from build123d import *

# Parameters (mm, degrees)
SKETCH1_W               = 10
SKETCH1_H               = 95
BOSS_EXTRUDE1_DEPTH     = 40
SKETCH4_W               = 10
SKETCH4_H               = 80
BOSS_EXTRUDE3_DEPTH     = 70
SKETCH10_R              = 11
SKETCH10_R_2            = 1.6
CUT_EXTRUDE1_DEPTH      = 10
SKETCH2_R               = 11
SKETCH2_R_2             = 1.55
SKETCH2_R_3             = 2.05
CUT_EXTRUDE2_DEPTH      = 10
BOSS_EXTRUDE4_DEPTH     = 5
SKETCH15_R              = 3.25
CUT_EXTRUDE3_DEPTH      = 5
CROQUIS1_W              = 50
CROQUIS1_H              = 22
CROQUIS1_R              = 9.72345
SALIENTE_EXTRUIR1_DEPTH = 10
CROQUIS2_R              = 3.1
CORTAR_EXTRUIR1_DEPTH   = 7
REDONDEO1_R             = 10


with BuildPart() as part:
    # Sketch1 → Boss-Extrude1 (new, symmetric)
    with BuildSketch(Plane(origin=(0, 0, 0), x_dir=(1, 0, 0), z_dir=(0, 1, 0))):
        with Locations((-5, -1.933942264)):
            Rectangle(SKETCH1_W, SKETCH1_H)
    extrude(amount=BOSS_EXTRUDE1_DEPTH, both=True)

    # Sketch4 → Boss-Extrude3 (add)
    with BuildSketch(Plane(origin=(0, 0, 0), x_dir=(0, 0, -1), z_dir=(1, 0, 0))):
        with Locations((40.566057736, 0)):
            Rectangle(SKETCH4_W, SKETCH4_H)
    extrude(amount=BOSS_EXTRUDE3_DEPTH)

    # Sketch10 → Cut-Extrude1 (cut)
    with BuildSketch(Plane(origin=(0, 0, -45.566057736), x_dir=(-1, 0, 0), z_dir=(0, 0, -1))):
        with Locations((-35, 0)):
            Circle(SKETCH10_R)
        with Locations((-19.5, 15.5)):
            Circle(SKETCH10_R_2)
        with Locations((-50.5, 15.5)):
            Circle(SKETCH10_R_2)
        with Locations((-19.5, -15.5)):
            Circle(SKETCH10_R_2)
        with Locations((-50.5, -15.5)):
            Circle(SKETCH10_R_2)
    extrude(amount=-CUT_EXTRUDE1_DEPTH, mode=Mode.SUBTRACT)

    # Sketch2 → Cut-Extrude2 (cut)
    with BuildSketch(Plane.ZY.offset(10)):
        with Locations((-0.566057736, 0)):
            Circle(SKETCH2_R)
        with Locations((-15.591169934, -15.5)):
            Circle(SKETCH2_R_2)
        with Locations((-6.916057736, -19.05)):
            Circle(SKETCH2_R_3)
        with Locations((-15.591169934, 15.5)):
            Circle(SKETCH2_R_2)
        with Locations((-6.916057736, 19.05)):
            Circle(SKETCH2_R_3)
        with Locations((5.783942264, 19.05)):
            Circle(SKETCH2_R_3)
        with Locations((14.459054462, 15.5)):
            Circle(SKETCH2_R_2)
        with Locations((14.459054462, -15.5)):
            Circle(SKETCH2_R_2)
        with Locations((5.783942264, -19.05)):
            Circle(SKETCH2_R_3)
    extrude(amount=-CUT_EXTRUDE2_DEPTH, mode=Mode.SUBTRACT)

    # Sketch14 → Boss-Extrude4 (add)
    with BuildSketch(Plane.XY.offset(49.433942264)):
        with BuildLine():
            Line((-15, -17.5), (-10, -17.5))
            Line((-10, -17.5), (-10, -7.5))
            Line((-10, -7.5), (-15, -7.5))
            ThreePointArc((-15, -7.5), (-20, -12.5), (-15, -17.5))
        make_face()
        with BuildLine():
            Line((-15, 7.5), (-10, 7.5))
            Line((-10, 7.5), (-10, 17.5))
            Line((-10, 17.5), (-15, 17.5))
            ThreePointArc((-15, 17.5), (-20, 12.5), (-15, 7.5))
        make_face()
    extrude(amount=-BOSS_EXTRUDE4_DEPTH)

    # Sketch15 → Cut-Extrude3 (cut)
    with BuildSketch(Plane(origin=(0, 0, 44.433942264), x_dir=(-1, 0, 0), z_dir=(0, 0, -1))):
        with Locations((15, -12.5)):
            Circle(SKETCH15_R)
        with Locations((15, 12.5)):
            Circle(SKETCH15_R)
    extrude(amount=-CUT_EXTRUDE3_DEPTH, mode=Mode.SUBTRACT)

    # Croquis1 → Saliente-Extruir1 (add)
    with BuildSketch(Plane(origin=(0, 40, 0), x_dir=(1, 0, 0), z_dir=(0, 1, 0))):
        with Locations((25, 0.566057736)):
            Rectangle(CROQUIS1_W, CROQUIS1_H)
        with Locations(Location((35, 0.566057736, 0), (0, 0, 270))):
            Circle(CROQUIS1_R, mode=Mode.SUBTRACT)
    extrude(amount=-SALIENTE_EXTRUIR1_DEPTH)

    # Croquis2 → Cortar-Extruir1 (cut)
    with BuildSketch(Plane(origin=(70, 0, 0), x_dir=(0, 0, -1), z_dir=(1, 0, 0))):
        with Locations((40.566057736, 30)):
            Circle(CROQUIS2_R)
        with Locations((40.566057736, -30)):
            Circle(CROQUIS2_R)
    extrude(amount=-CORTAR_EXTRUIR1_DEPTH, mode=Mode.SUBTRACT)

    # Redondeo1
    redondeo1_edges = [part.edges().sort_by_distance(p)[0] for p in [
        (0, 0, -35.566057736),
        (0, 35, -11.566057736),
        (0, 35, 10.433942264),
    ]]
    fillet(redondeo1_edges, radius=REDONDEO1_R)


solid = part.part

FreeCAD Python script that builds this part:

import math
import FreeCAD as App
import Part
import Sketcher
from FreeCAD import Vector
Q = App.Units.Quantity


def edges_at(feature, points):
    """Names of the edges that pass closest to the given points."""
    edges = feature.Shape.Edges
    near = lambda p: min(range(len(edges)), key=lambda i: edges[i].distToShape(Part.Vertex(*p))[0])
    return sorted({f"Edge{near(p) + 1}" for p in points})


def add_polygon(sketch, points):
    """Adds a closed chain of lines whose ends are joined by coincident constraints."""
    first, n = sketch.GeometryCount, len(points)
    for a, b in zip(points, points[1:] + points[:1]):
        sketch.addGeometry(Part.LineSegment(App.Vector(*a, 0), App.Vector(*b, 0)), False)
    for i in range(n):
        sketch.addConstraint(Sketcher.Constraint("Coincident", first + i, 2, first + (i + 1) % n, 1))

doc = App.newDocument("Part")
params = doc.addObject("Spreadsheet::Sheet", "Params")
for row, (alias, value) in enumerate([
    ("sketch1_width", "10 mm"),
    ("sketch1_height", "95 mm"),
    ("pad1_length", "80 mm"),
    ("sketch2_width", "80 mm"),
    ("sketch2_height", "10 mm"),
    ("pad2_length", "70 mm"),
    ("sketch3_diameter", "22 mm"),
    ("sketch3_diameter2", "3.2 mm"),
    ("pocket1_length", "10 mm"),
    ("sketch4_diameter", "22 mm"),
    ("sketch4_diameter2", "3.1 mm"),
    ("sketch4_diameter3", "4.1 mm"),
    ("pocket2_length", "10 mm"),
    ("sketch5_radius", "5 mm"),
    ("sketch5_width", "5 mm"),
    ("pad3_length", "5 mm"),
    ("sketch6_diameter", "6.5 mm"),
    ("pocket3_length", "5 mm"),
    ("sketch7_width", "50 mm"),
    ("sketch7_height", "22 mm"),
    ("pad4_length", "10 mm"),
    ("sketch8_diameter", "6.2 mm"),
    ("pocket4_length", "7 mm"),
    ("fillet_radius", "10 mm"),
], start=1):
    params.set(f"A{row}", alias)
    params.set(f"B{row}", "=" + value)
    params.setAlias(f"B{row}", alias)

body = doc.addObject("PartDesign::Body", "Body")

# Sketch on XZ plane
sketch1 = body.newObject("Sketcher::SketchObject", "Sketch")
sketch1.AttachmentSupport = (doc.getObject("XZ_Plane"), [""])
sketch1.MapMode = "FlatFace"
add_polygon(sketch1, [(-10, -45.566058), (-10, 49.433942), (0, 49.433942), (0, -45.566058)])  # lines 0-3
sketch1.addConstraint(Sketcher.Constraint("Vertical", 0))
sketch1.addConstraint(Sketcher.Constraint("Horizontal", 1))
sketch1.addConstraint(Sketcher.Constraint("Vertical", 2))
sketch1.addConstraint(Sketcher.Constraint("Horizontal", 3))
sketch1.addConstraint(Sketcher.Constraint("PointOnObject", 1, 2, -2))
sketch1.addConstraint(Sketcher.Constraint("DistanceX", 1, 1, 1, 2, Q("10 mm")))
sketch1.addConstraint(Sketcher.Constraint("DistanceY", 0, 1, 0, 2, Q("95 mm")))
sketch1.addConstraint(Sketcher.Constraint("DistanceY", -1, 1, 0, 2, Q("49.433942 mm")))
sketch1.setExpression("Constraints[9]", "Params.sketch1_width")
sketch1.setExpression("Constraints[10]", "Params.sketch1_height")
pad1 = body.newObject("PartDesign::Pad", "Pad")
pad1.Profile = sketch1
pad1.setExpression("Length", "Params.pad1_length")
pad1.Midplane = True

# Sketch on YZ plane
sketch2 = body.newObject("Sketcher::SketchObject", "Sketch001")
sketch2.AttachmentSupport = (doc.getObject("YZ_Plane"), [""])
sketch2.MapMode = "FlatFace"
add_polygon(sketch2, [(40, -35.566058), (-40, -35.566058), (-40, -45.566058), (40, -45.566058)])  # lines 0-3
sketch2.addConstraint(Sketcher.Constraint("Horizontal", 0))
sketch2.addConstraint(Sketcher.Constraint("Vertical", 1))
sketch2.addConstraint(Sketcher.Constraint("Horizontal", 2))
sketch2.addConstraint(Sketcher.Constraint("Vertical", 3))
sketch2.addConstraint(Sketcher.Constraint("DistanceX", 0, 2, 0, 1, Q("80 mm")))
sketch2.addConstraint(Sketcher.Constraint("DistanceY", 1, 2, 1, 1, Q("10 mm")))
sketch2.addConstraint(Sketcher.Constraint("DistanceX", 0, 2, -1, 1, Q("40 mm")))
sketch2.addConstraint(Sketcher.Constraint("DistanceY", 0, 2, -1, 1, Q("35.566058 mm")))
sketch2.setExpression("Constraints[8]", "Params.sketch2_width")
sketch2.setExpression("Constraints[9]", "Params.sketch2_height")
pad2 = body.newObject("PartDesign::Pad", "Pad001")
pad2.Profile = sketch2
pad2.setExpression("Length", "Params.pad2_length")

# Sketch on XY plane
sketch3 = body.newObject("Sketcher::SketchObject", "Sketch002")
sketch3.AttachmentSupport = (doc.getObject("XY_Plane"), [""])
sketch3.MapMode = "FlatFace"
sketch3.AttachmentOffset = App.Placement(Vector(0, 0, -45.566058), App.Rotation())
sketch3.addGeometry(Part.Circle(Vector(35, 0, 0), Vector(0, 0, 1), 11), False)
sketch3.addGeometry(Part.Circle(Vector(19.5, 15.5, 0), Vector(0, 0, 1), 1.6), False)
sketch3.addGeometry(Part.Circle(Vector(50.5, 15.5, 0), Vector(0, 0, 1), 1.6), False)
sketch3.addGeometry(Part.Circle(Vector(19.5, -15.5, 0), Vector(0, 0, 1), 1.6), False)
sketch3.addGeometry(Part.Circle(Vector(50.5, -15.5, 0), Vector(0, 0, 1), 1.6), False)
sketch3.addConstraint(Sketcher.Constraint("Equal", 1, 2))
sketch3.addConstraint(Sketcher.Constraint("Equal", 2, 3))
sketch3.addConstraint(Sketcher.Constraint("Equal", 3, 4))
sketch3.addConstraint(Sketcher.Constraint("Symmetric", 1, 3, 3, 3, -1))
sketch3.addConstraint(Sketcher.Constraint("Symmetric", 2, 3, 4, 3, -1))
sketch3.addConstraint(Sketcher.Constraint("PointOnObject", 0, 3, -1))
sketch3.addConstraint(Sketcher.Constraint("Horizontal", 1, 3, 2, 3))
sketch3.addConstraint(Sketcher.Constraint("Diameter", 0, Q("22 mm")))
sketch3.addConstraint(Sketcher.Constraint("Diameter", 1, Q("3.2 mm")))
sketch3.addConstraint(Sketcher.Constraint("DistanceX", -1, 1, 0, 3, Q("35 mm")))
sketch3.addConstraint(Sketcher.Constraint("DistanceX", 1, 3, 2, 3, Q("31 mm")))
sketch3.addConstraint(Sketcher.Constraint("DistanceY", 3, 3, 1, 3, Q("31 mm")))
sketch3.addConstraint(Sketcher.Constraint("DistanceX", -1, 1, 1, 3, Q("19.5 mm")))
sketch3.setExpression("Constraints[7]", "Params.sketch3_diameter")
sketch3.setExpression("Constraints[8]", "Params.sketch3_diameter2")
pocket1 = body.newObject("PartDesign::Pocket", "Pocket")
pocket1.Profile = sketch3
pocket1.setExpression("Length", "Params.pocket1_length")
pocket1.Reversed = True

# Sketch on YZ plane
sketch4 = body.newObject("Sketcher::SketchObject", "Sketch003")
sketch4.AttachmentSupport = (doc.getObject("YZ_Plane"), [""])
sketch4.MapMode = "FlatFace"
sketch4.AttachmentOffset = App.Placement(Vector(0, 0, -10), App.Rotation())
sketch4.addGeometry(Part.Circle(Vector(0, -0.566058, 0), Vector(0, 0, 1), 11), False)
sketch4.addGeometry(Part.Circle(Vector(-15.5, -15.59117, 0), Vector(0, 0, 1), 1.55), False)
sketch4.addGeometry(Part.Circle(Vector(-19.05, -6.916058, 0), Vector(0, 0, 1), 2.05), False)
sketch4.addGeometry(Part.Circle(Vector(15.5, -15.59117, 0), Vector(0, 0, 1), 1.55), False)
sketch4.addGeometry(Part.Circle(Vector(19.05, -6.916058, 0), Vector(0, 0, 1), 2.05), False)
sketch4.addGeometry(Part.Circle(Vector(19.05, 5.783942, 0), Vector(0, 0, 1), 2.05), False)
sketch4.addGeometry(Part.Circle(Vector(15.5, 14.459054, 0), Vector(0, 0, 1), 1.55), False)
sketch4.addGeometry(Part.Circle(Vector(-15.5, 14.459054, 0), Vector(0, 0, 1), 1.55), False)
sketch4.addGeometry(Part.Circle(Vector(-19.05, 5.783942, 0), Vector(0, 0, 1), 2.05), False)
sketch4.addConstraint(Sketcher.Constraint("Equal", 1, 3))
sketch4.addConstraint(Sketcher.Constraint("Equal", 2, 4))
sketch4.addConstraint(Sketcher.Constraint("Equal", 4, 5))
sketch4.addConstraint(Sketcher.Constraint("Equal", 3, 6))
sketch4.addConstraint(Sketcher.Constraint("Equal", 6, 7))
sketch4.addConstraint(Sketcher.Constraint("Equal", 5, 8))
sketch4.addConstraint(Sketcher.Constraint("Symmetric", 1, 3, 3, 3, -2))
sketch4.addConstraint(Sketcher.Constraint("Symmetric", 2, 3, 4, 3, -2))
sketch4.addConstraint(Sketcher.Constraint("Symmetric", 6, 3, 7, 3, -2))
sketch4.addConstraint(Sketcher.Constraint("Symmetric", 5, 3, 8, 3, -2))
sketch4.addConstraint(Sketcher.Constraint("PointOnObject", 0, 3, -2))
sketch4.addConstraint(Sketcher.Constraint("Vertical", 4, 3, 5, 3))
sketch4.addConstraint(Sketcher.Constraint("Vertical", 3, 3, 6, 3))
sketch4.addConstraint(Sketcher.Constraint("Diameter", 0, Q("22 mm")))
sketch4.addConstraint(Sketcher.Constraint("Diameter", 1, Q("3.1 mm")))
sketch4.addConstraint(Sketcher.Constraint("Diameter", 2, Q("4.1 mm")))
sketch4.addConstraint(Sketcher.Constraint("DistanceX", 1, 3, 3, 3, Q("31 mm")))
sketch4.addConstraint(Sketcher.Constraint("DistanceX", 2, 3, 4, 3, Q("38.1 mm")))
sketch4.addConstraint(Sketcher.Constraint("DistanceY", 4, 3, 5, 3, Q("12.7 mm")))
sketch4.addConstraint(Sketcher.Constraint("DistanceY", 2, 3, 0, 3, Q("6.35 mm")))
sketch4.addConstraint(Sketcher.Constraint("DistanceY", 1, 3, -1, 1, Q("15.59117 mm")))
sketch4.addConstraint(Sketcher.Constraint("DistanceY", 0, 3, -1, 1, Q("0.566058 mm")))
sketch4.addConstraint(Sketcher.Constraint("DistanceY", -1, 1, 6, 3, Q("14.459054 mm")))
sketch4.setExpression("Constraints[13]", "Params.sketch4_diameter")
sketch4.setExpression("Constraints[14]", "Params.sketch4_diameter2")
sketch4.setExpression("Constraints[15]", "Params.sketch4_diameter3")
pocket2 = body.newObject("PartDesign::Pocket", "Pocket001")
pocket2.Profile = sketch4
pocket2.setExpression("Length", "Params.pocket2_length")
pocket2.Reversed = True

# Sketch on XY plane
sketch5 = body.newObject("Sketcher::SketchObject", "Sketch004")
sketch5.AttachmentSupport = (doc.getObject("XY_Plane"), [""])
sketch5.MapMode = "FlatFace"
sketch5.AttachmentOffset = App.Placement(Vector(0, 0, 49.433942), App.Rotation())
sketch5.addGeometry(Part.LineSegment(Vector(-15, -17.5, 0), Vector(-10, -17.5, 0)), False)
sketch5.addGeometry(Part.LineSegment(Vector(-10, -17.5, 0), Vector(-10, -7.5, 0)), False)
sketch5.addGeometry(Part.LineSegment(Vector(-10, -7.5, 0), Vector(-15, -7.5, 0)), False)
sketch5.addGeometry(Part.ArcOfCircle(Part.Circle(Vector(-15, -12.5, 0), Vector(0, 0, 1), 5), math.radians(90), math.radians(270)), False)
sketch5.addGeometry(Part.LineSegment(Vector(-15, 7.5, 0), Vector(-10, 7.5, 0)), False)
sketch5.addGeometry(Part.LineSegment(Vector(-10, 7.5, 0), Vector(-10, 17.5, 0)), False)
sketch5.addGeometry(Part.LineSegment(Vector(-10, 17.5, 0), Vector(-15, 17.5, 0)), False)
sketch5.addGeometry(Part.ArcOfCircle(Part.Circle(Vector(-15, 12.5, 0), Vector(0, 0, 1), 5), math.radians(90), math.radians(270)), False)
sketch5.addConstraint(Sketcher.Constraint("Coincident", 0, 2, 1, 1))
sketch5.addConstraint(Sketcher.Constraint("Coincident", 1, 2, 2, 1))
sketch5.addConstraint(Sketcher.Constraint("Tangent", 2, 2, 3, 1))
sketch5.addConstraint(Sketcher.Constraint("Tangent", 3, 2, 0, 1))
sketch5.addConstraint(Sketcher.Constraint("Coincident", 4, 2, 5, 1))
sketch5.addConstraint(Sketcher.Constraint("Coincident", 5, 2, 6, 1))
sketch5.addConstraint(Sketcher.Constraint("Tangent", 6, 2, 7, 1))
sketch5.addConstraint(Sketcher.Constraint("Tangent", 7, 2, 4, 1))
sketch5.addConstraint(Sketcher.Constraint("Horizontal", 0))
sketch5.addConstraint(Sketcher.Constraint("Vertical", 1))
sketch5.addConstraint(Sketcher.Constraint("Horizontal", 2))
sketch5.addConstraint(Sketcher.Constraint("Horizontal", 4))
sketch5.addConstraint(Sketcher.Constraint("Vertical", 5))
sketch5.addConstraint(Sketcher.Constraint("Horizontal", 6))
sketch5.addConstraint(Sketcher.Constraint("Equal", 3, 7))
sketch5.addConstraint(Sketcher.Constraint("Symmetric", 3, 3, 7, 3, -1))
sketch5.addConstraint(Sketcher.Constraint("Vertical", 1, 2, 4, 2))
sketch5.addConstraint(Sketcher.Constraint("Radius", 3, Q("5 mm")))
sketch5.addConstraint(Sketcher.Constraint("DistanceX", 0, 1, 0, 2, Q("5 mm")))
sketch5.addConstraint(Sketcher.Constraint("DistanceX", 3, 3, -1, 1, Q("15 mm")))
sketch5.addConstraint(Sketcher.Constraint("DistanceY", 3, 3, 7, 3, Q("25 mm")))
sketch5.setExpression("Constraints[17]", "Params.sketch5_radius")
sketch5.setExpression("Constraints[18]", "Params.sketch5_width")
pad3 = body.newObject("PartDesign::Pad", "Pad002")
pad3.Profile = sketch5
pad3.setExpression("Length", "Params.pad3_length")
pad3.Reversed = True

# Sketch on XY plane
sketch6 = body.newObject("Sketcher::SketchObject", "Sketch005")
sketch6.AttachmentSupport = (doc.getObject("XY_Plane"), [""])
sketch6.MapMode = "FlatFace"
sketch6.AttachmentOffset = App.Placement(Vector(0, 0, 44.433942), App.Rotation())
sketch6.addGeometry(Part.Circle(Vector(-15, -12.5, 0), Vector(0, 0, 1), 3.25), False)
sketch6.addGeometry(Part.Circle(Vector(-15, 12.5, 0), Vector(0, 0, 1), 3.25), False)
sketch6.addConstraint(Sketcher.Constraint("Equal", 0, 1))
sketch6.addConstraint(Sketcher.Constraint("Symmetric", 0, 3, 1, 3, -1))
sketch6.addConstraint(Sketcher.Constraint("Diameter", 0, Q("6.5 mm")))
sketch6.addConstraint(Sketcher.Constraint("DistanceX", 0, 3, -1, 1, Q("15 mm")))
sketch6.addConstraint(Sketcher.Constraint("DistanceY", 0, 3, 1, 3, Q("25 mm")))
sketch6.setExpression("Constraints[2]", "Params.sketch6_diameter")
pocket3 = body.newObject("PartDesign::Pocket", "Pocket002")
pocket3.Profile = sketch6
pocket3.setExpression("Length", "Params.pocket3_length")
pocket3.Reversed = True

# Sketch on XZ plane
sketch7 = body.newObject("Sketcher::SketchObject", "Sketch006")
sketch7.AttachmentSupport = (doc.getObject("XZ_Plane"), [""])
sketch7.MapMode = "FlatFace"
sketch7.AttachmentOffset = App.Placement(Vector(0, 0, -40), App.Rotation())
add_polygon(sketch7, [(0, -11.566058), (0, 10.433942), (50, 10.433942), (50, -11.566058)])  # lines 0-3
sketch7.addGeometry(Part.Circle(Vector(35, -0.566058, 0), Vector(0, 0, 1), 9.72345), False)  # 4
sketch7.addConstraint(Sketcher.Constraint("Vertical", 0))
sketch7.addConstraint(Sketcher.Constraint("Horizontal", 1))
sketch7.addConstraint(Sketcher.Constraint("Vertical", 2))
sketch7.addConstraint(Sketcher.Constraint("Horizontal", 3))
sketch7.addConstraint(Sketcher.Constraint("PointOnObject", 0, 2, -2))
sketch7.addConstraint(Sketcher.Constraint("DistanceX", 1, 1, 1, 2, Q("50 mm")))
sketch7.addConstraint(Sketcher.Constraint("DistanceY", 0, 1, 0, 2, Q("22 mm")))
sketch7.addConstraint(Sketcher.Constraint("DistanceX", -1, 1, 4, 3, Q("35 mm")))
sketch7.addConstraint(Sketcher.Constraint("DistanceY", 4, 3, 0, 2, Q("11 mm")))
sketch7.addConstraint(Sketcher.Constraint("Diameter", 4, Q("19.4469 mm")))
sketch7.addConstraint(Sketcher.Constraint("DistanceY", 4, 3, -1, 1, Q("0.566058 mm")))
sketch7.setExpression("Constraints[9]", "Params.sketch7_width")
sketch7.setExpression("Constraints[10]", "Params.sketch7_height")
pad4 = body.newObject("PartDesign::Pad", "Pad003")
pad4.Profile = sketch7
pad4.setExpression("Length", "Params.pad4_length")

# Sketch on YZ plane
sketch8 = body.newObject("Sketcher::SketchObject", "Sketch007")
sketch8.AttachmentSupport = (doc.getObject("YZ_Plane"), [""])
sketch8.MapMode = "FlatFace"
sketch8.AttachmentOffset = App.Placement(Vector(0, 0, 70), App.Rotation())
sketch8.addGeometry(Part.Circle(Vector(30, -40.566058, 0), Vector(0, 0, 1), 3.1), False)
sketch8.addGeometry(Part.Circle(Vector(-30, -40.566058, 0), Vector(0, 0, 1), 3.1), False)
sketch8.addConstraint(Sketcher.Constraint("Equal", 0, 1))
sketch8.addConstraint(Sketcher.Constraint("Symmetric", 0, 3, 1, 3, -2))
sketch8.addConstraint(Sketcher.Constraint("Diameter", 0, Q("6.2 mm")))
sketch8.addConstraint(Sketcher.Constraint("DistanceX", -1, 1, 0, 3, Q("30 mm")))
sketch8.addConstraint(Sketcher.Constraint("DistanceY", 0, 3, -1, 1, Q("40.566058 mm")))
sketch8.setExpression("Constraints[2]", "Params.sketch8_diameter")
pocket4 = body.newObject("PartDesign::Pocket", "Pocket003")
pocket4.Profile = sketch8
pocket4.setExpression("Length", "Params.pocket4_length")
doc.recompute()

fillet = body.newObject("PartDesign::Fillet", "Fillet")
fillet.Base = (pocket4, edges_at(pocket4, [(0, 0, -35.566), (0, 35, -11.566), (0, 35, 10.434)]))
fillet.setExpression("Radius", "Params.fillet_radius")

doc.recompute()
